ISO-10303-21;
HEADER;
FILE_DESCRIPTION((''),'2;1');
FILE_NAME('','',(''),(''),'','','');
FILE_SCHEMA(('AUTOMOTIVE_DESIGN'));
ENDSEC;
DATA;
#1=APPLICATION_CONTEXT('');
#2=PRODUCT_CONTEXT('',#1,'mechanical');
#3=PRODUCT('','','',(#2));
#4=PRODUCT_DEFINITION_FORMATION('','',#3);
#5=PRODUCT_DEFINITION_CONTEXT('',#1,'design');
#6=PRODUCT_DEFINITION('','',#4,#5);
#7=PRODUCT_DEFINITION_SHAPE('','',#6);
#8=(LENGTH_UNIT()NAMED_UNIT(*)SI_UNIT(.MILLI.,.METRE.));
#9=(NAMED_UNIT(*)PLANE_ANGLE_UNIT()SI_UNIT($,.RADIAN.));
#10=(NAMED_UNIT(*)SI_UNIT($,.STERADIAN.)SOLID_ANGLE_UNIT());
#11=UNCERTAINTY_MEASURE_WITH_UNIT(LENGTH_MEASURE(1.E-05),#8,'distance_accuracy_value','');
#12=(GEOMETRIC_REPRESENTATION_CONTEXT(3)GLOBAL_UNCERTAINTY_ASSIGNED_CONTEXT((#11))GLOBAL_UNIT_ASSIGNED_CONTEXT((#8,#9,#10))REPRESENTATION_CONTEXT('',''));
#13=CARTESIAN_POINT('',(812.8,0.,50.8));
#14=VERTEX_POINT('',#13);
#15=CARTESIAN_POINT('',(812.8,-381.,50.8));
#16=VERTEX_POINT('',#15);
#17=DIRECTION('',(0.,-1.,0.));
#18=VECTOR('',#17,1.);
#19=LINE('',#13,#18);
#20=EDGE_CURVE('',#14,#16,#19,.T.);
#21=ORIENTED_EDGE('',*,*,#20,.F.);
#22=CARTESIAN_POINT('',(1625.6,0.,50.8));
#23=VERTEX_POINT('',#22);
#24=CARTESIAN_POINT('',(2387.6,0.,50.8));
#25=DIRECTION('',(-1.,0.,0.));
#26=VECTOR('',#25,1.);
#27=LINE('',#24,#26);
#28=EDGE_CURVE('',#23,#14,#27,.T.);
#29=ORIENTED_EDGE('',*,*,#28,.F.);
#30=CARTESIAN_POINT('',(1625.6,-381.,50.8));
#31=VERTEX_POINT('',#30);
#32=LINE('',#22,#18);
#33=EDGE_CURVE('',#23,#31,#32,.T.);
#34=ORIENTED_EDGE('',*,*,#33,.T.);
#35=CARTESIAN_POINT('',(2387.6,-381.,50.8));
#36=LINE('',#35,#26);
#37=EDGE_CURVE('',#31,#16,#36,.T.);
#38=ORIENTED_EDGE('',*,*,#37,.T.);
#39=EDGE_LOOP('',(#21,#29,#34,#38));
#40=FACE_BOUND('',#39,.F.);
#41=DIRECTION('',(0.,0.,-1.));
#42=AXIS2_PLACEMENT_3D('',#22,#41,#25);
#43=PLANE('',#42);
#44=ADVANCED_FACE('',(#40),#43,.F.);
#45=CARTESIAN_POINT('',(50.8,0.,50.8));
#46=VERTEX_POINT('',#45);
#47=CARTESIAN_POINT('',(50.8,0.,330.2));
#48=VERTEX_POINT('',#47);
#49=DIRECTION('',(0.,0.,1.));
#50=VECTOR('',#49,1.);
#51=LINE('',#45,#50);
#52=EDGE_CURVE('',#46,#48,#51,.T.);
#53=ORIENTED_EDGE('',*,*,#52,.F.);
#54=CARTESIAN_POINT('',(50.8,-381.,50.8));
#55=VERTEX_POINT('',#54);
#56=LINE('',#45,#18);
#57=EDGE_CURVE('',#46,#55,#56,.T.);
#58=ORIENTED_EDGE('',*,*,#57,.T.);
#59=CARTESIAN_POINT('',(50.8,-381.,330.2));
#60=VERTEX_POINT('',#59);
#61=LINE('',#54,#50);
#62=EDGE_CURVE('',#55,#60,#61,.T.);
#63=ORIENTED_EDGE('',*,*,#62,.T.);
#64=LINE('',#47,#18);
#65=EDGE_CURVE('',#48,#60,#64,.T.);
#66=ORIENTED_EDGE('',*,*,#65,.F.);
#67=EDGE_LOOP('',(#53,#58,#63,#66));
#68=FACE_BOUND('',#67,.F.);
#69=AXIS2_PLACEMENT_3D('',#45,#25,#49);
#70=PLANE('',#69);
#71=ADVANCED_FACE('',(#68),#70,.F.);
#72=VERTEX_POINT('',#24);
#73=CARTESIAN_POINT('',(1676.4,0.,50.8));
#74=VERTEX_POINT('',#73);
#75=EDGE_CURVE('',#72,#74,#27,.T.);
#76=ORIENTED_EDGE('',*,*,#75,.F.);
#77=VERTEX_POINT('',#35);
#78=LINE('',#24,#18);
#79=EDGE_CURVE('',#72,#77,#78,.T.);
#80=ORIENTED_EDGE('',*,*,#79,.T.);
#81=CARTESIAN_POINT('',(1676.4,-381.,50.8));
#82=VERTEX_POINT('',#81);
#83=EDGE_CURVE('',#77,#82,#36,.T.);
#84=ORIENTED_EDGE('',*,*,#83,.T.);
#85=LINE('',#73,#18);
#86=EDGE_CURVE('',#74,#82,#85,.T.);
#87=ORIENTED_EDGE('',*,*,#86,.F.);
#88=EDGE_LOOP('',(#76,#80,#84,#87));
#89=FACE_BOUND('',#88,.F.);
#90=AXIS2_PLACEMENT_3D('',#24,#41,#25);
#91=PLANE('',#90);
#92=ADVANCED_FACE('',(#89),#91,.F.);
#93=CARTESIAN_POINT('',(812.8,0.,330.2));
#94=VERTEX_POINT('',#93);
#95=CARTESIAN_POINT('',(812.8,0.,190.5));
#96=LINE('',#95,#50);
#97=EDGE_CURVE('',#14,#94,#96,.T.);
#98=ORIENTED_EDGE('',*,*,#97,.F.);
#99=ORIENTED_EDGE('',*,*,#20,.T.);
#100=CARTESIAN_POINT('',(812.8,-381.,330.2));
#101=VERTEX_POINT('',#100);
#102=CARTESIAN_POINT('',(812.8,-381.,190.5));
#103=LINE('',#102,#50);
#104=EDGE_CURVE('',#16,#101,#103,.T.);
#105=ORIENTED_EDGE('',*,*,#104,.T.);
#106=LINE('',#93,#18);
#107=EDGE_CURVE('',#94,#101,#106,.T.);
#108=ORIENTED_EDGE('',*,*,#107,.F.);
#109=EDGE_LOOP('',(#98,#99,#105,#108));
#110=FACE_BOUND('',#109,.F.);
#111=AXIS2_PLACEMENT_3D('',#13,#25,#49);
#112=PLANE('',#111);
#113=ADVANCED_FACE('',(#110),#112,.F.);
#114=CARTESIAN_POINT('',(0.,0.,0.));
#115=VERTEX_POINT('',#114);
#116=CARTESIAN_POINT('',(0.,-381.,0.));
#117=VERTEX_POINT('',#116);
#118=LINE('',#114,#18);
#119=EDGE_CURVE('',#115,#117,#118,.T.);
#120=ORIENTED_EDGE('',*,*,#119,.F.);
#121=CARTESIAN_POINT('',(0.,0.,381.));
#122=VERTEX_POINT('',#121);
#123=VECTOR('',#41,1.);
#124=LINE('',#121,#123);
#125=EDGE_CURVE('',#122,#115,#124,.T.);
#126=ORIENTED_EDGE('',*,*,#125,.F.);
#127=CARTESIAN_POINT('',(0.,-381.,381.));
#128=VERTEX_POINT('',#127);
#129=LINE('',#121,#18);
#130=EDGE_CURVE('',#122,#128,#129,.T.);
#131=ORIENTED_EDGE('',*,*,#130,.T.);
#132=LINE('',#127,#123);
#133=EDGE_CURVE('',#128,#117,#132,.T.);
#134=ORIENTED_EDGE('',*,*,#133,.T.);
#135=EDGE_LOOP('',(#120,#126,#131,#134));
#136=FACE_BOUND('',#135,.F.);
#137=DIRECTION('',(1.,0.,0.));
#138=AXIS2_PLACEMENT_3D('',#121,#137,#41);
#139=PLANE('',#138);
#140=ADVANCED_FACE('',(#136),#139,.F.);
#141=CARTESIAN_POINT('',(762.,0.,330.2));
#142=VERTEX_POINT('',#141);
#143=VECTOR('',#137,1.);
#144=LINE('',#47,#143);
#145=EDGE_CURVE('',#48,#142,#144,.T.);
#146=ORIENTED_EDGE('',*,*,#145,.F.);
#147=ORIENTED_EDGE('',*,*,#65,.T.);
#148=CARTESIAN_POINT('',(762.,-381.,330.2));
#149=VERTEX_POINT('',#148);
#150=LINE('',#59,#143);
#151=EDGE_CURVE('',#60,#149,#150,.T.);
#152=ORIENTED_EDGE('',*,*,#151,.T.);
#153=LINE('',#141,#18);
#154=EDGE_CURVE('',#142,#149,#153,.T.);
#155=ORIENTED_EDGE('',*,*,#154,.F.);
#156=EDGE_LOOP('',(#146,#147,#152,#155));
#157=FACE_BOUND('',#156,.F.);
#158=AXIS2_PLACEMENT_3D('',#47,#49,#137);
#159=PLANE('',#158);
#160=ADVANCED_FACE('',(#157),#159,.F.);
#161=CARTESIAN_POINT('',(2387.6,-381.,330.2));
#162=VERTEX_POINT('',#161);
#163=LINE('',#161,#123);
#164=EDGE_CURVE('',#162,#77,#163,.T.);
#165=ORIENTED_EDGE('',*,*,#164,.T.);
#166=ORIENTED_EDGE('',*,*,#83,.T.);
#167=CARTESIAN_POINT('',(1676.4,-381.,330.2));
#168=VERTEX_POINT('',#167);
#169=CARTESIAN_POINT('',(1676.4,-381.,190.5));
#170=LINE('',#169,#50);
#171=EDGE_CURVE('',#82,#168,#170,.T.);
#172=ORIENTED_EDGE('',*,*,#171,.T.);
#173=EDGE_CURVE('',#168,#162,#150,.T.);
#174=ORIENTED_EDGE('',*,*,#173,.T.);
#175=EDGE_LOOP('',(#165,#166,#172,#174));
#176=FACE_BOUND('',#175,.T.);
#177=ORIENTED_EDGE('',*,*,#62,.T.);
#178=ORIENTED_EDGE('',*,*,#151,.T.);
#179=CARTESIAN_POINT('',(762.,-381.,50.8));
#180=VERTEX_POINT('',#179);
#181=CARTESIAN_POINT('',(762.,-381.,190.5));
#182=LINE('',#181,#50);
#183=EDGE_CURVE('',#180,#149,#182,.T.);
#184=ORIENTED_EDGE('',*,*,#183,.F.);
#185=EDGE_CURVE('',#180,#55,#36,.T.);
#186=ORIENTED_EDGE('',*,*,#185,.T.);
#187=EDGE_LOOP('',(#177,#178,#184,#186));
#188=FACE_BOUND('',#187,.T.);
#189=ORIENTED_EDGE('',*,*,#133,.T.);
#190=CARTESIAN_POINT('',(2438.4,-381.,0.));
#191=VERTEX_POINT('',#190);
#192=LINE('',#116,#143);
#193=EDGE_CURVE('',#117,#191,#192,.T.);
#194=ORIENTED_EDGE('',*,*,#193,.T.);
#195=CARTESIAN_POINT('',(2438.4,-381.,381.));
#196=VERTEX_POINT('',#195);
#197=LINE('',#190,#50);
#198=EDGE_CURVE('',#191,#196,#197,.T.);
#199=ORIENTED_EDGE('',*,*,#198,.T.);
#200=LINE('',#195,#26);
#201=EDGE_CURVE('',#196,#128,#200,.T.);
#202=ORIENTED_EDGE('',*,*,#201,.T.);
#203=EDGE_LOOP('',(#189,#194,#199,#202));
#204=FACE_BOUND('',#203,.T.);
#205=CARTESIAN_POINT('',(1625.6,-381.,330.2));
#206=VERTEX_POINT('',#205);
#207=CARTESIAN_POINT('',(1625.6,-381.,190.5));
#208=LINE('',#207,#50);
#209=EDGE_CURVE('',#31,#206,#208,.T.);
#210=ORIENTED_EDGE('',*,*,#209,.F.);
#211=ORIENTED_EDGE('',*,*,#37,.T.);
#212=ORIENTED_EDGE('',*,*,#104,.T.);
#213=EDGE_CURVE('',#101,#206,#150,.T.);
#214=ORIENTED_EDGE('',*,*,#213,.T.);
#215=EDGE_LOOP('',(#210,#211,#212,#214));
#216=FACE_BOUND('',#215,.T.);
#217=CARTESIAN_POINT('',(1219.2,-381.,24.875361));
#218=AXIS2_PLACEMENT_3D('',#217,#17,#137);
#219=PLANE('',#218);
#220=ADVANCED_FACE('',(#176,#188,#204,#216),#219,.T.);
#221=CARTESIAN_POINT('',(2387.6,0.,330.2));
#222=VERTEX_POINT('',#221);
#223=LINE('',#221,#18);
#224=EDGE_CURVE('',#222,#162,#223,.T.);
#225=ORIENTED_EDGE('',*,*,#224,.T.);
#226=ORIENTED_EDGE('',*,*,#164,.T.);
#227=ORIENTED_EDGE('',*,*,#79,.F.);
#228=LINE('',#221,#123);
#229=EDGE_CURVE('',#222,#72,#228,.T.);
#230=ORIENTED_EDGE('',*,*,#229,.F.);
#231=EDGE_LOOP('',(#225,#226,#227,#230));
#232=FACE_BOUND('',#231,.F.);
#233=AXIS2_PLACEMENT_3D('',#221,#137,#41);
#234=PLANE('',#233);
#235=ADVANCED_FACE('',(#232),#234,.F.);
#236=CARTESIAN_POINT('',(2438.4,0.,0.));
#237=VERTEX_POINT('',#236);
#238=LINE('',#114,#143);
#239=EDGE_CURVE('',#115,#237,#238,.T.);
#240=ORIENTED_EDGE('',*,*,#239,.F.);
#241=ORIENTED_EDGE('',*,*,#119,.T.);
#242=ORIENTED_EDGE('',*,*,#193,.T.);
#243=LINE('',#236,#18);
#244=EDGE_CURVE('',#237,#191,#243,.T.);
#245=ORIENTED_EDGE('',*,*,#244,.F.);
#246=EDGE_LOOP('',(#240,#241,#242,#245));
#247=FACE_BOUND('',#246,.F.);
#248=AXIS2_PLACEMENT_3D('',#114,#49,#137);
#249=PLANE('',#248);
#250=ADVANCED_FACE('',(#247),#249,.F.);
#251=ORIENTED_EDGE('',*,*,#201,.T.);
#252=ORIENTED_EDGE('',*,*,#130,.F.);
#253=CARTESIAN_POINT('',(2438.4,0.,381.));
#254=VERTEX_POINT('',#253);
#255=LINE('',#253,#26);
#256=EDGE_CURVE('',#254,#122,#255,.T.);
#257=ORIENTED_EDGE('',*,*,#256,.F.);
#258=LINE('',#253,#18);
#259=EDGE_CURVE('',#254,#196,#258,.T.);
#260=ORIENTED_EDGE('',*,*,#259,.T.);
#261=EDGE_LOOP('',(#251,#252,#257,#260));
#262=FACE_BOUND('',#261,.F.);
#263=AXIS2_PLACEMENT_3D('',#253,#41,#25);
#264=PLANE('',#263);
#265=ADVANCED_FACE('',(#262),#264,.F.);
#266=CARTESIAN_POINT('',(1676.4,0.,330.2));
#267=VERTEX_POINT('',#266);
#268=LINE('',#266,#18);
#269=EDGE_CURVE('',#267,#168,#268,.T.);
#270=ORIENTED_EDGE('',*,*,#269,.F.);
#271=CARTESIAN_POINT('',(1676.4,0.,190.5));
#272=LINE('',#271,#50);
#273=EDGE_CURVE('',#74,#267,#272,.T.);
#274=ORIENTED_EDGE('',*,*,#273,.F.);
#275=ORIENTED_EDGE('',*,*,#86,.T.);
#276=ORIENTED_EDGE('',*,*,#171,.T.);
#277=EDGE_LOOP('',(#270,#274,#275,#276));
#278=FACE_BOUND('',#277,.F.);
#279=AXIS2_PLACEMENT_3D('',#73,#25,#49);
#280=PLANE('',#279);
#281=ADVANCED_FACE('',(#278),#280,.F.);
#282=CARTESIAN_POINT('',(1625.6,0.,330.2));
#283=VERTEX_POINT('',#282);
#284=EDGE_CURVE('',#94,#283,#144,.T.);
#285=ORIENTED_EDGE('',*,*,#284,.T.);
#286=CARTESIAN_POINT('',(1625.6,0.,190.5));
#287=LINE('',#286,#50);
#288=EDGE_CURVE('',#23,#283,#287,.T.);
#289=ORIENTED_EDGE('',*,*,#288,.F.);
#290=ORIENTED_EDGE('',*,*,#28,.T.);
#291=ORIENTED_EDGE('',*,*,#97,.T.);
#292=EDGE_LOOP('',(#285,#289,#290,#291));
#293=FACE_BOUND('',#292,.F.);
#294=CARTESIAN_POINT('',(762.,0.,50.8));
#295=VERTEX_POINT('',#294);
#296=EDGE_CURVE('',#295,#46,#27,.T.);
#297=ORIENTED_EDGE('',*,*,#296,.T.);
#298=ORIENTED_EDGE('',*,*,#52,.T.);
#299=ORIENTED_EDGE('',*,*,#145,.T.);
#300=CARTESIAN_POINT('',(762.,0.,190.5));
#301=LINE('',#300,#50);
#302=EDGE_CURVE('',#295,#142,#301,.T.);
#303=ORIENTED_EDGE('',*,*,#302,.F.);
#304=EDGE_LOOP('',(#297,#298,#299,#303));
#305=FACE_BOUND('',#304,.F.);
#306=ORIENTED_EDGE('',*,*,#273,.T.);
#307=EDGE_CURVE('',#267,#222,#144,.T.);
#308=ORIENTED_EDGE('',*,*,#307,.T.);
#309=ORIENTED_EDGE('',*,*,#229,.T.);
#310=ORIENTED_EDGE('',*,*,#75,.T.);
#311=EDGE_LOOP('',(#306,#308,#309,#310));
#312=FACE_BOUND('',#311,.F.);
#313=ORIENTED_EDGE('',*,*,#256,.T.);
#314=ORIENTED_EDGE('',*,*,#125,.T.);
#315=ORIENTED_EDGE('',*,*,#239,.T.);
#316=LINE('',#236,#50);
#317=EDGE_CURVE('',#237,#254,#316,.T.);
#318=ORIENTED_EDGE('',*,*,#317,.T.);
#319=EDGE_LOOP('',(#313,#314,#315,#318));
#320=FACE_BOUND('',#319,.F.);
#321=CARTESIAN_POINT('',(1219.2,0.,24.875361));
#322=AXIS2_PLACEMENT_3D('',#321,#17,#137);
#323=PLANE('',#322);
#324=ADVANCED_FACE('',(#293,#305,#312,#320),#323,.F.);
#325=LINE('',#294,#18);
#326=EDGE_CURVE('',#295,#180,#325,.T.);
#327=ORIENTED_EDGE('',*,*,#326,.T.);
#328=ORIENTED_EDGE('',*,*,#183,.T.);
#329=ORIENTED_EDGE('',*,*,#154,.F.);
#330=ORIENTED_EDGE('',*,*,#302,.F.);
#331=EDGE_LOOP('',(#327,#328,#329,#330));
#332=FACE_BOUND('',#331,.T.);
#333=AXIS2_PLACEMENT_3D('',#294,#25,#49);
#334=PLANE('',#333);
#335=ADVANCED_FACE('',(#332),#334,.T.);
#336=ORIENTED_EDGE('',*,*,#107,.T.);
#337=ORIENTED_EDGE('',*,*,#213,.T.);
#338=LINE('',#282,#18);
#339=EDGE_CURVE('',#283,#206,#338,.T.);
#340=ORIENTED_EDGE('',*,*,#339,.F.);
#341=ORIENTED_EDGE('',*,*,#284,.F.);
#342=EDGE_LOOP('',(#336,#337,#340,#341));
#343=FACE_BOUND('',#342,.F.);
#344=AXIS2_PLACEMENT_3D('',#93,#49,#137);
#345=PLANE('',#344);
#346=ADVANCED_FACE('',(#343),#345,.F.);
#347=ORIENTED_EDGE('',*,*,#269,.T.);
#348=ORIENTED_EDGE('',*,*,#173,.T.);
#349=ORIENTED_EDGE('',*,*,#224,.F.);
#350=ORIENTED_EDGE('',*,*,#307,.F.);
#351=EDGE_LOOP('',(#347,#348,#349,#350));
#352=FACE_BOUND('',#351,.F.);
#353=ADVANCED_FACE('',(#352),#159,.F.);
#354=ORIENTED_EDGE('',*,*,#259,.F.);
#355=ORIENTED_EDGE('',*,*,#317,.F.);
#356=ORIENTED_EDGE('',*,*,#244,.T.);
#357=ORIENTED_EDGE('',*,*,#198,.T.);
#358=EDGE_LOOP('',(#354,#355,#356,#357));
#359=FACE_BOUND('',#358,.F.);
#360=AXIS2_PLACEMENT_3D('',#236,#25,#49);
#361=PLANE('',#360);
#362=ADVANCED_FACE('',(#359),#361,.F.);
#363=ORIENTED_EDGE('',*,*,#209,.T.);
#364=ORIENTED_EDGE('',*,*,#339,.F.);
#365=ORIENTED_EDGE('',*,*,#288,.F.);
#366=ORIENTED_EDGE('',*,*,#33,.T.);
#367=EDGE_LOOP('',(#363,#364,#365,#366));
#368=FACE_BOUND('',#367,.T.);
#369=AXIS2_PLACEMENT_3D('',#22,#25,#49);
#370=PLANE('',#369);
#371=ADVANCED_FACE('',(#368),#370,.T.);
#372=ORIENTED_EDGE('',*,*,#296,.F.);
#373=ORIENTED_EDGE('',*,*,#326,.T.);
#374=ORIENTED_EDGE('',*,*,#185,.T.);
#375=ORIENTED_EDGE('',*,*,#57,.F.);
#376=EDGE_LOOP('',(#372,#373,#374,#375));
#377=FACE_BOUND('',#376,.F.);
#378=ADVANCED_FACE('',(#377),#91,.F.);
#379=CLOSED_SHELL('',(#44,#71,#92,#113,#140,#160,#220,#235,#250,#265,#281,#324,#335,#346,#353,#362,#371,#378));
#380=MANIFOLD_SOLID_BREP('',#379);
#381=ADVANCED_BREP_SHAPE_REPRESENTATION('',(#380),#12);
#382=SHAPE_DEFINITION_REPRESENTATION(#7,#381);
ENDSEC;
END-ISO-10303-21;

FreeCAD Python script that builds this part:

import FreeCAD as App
import Part
import Sketcher
Q = App.Units.Quantity


def add_polygon(sketch, points):
    """Adds a closed chain of lines whose ends are joined by coincident constraints."""
    first, n = sketch.GeometryCount, len(points)
    for a, b in zip(points, points[1:] + points[:1]):
        sketch.addGeometry(Part.LineSegment(App.Vector(*a, 0), App.Vector(*b, 0)), False)
    for i in range(n):
        sketch.addConstraint(Sketcher.Constraint("Coincident", first + i, 2, first + (i + 1) % n, 1))

doc = App.newDocument("Part")
body = doc.addObject("PartDesign::Body", "Body")

sketch1 = doc.addObject("Sketcher::SketchObject", "Sketch")
body.addObject(sketch1)
sketch1.AttachmentSupport = (doc.XZ_Plane, [""])
sketch1.MapMode = "FlatFace"
add_polygon(sketch1, [(0, 0), (2438.4, 0), (2438.4, 381), (0, 381)])
add_polygon(sketch1, [(2387.6, 330.2), (2387.6, 50.8), (50.8, 50.8), (50.8, 330.2)])
sketch1.addConstraint([
    Sketcher.Constraint("Horizontal", 0),
    Sketcher.Constraint("Vertical", 1),
    Sketcher.Constraint("Horizontal", 2),
    Sketcher.Constraint("Vertical", 3),
    Sketcher.Constraint("Vertical", 4),
    Sketcher.Constraint("Horizontal", 5),
    Sketcher.Constraint("Vertical", 6),
    Sketcher.Constraint("Horizontal", 7),
    Sketcher.Constraint("Coincident", 3, 2, -1, 1),
    Sketcher.Constraint("DistanceX", 0, 1, 0, 2, Q("96 in")),
    Sketcher.Constraint("DistanceX", 5, 2, 5, 1, Q("92 in")),
    Sketcher.Constraint("DistanceY", 1, 1, 1, 2, Q("15 in")),
    Sketcher.Constraint("DistanceY", 4, 2, 4, 1, Q("11 in")),
    Sketcher.Constraint("DistanceX", -1, 1, 4, 2, Q("94 in")),
    Sketcher.Constraint("DistanceY", -1, 1, 4, 2, Q("2 in")),
])
pad1 = doc.addObject("PartDesign::Pad", "Pad")
body.addObject(pad1)
pad1.Profile = sketch1
pad1.Length = Q("15 in")

sketch2 = doc.addObject("Sketcher::SketchObject", "Sketch001")
body.addObject(sketch2)
sketch2.AttachmentSupport = (doc.XZ_Plane, [""])
sketch2.MapMode = "FlatFace"
add_polygon(sketch2, [(0, 0), (2438.4, 0), (2438.4, 381), (0, 381)])
add_polygon(sketch2, [(2387.6, 330.2), (2387.6, 50.8), (1676.4, 50.8), (1676.4, 330.2)])
add_polygon(sketch2, [(1625.6, 50.8), (812.8, 50.8), (812.8, 330.2), (1625.6, 330.2)])
add_polygon(sketch2, [(762, 50.8), (50.8, 50.8), (50.8, 330.2), (762, 330.2)])
sketch2.addConstraint([
    Sketcher.Constraint("Horizontal", 0),
    Sketcher.Constraint("Vertical", 1),
    Sketcher.Constraint("Horizontal", 2),
    Sketcher.Constraint("Vertical", 3),
    Sketcher.Constraint("Vertical", 4),
    Sketcher.Constraint("Horizontal", 5),
    Sketcher.Constraint("Vertical", 6),
    Sketcher.Constraint("Horizontal", 7),
    Sketcher.Constraint("Horizontal", 8),
    Sketcher.Constraint("Vertical", 9),
    Sketcher.Constraint("Horizontal", 10),
    Sketcher.Constraint("Vertical", 11),
    Sketcher.Constraint("Horizontal", 12),
    Sketcher.Constraint("Vertical", 13),
    Sketcher.Constraint("Horizontal", 14),
    Sketcher.Constraint("Vertical", 15),
    Sketcher.Constraint("Coincident", 3, 2, -1, 1),
    Sketcher.Constraint("Horizontal", 5, 2, 8, 2),
    Sketcher.Constraint("Horizontal", 7, 2, 9, 2),
    Sketcher.Constraint("Horizontal", 11, 2, 12, 2),
    Sketcher.Constraint("Horizontal", 10, 2, 13, 2),
    Sketcher.Constraint("Equal", 7, 12),
    Sketcher.Constraint("DistanceX", 0, 1, 0, 2, Q("96 in")),
    Sketcher.Constraint("DistanceX", 5, 2, 5, 1, Q("28 in")),
    Sketcher.Constraint("DistanceX", 8, 2, 8, 1, Q("32 in")),
    Sketcher.Constraint("DistanceY", 1, 1, 1, 2, Q("15 in")),
    Sketcher.Constraint("DistanceY", 4, 2, 4, 1, Q("11 in")),
    Sketcher.Constraint("DistanceX", -1, 1, 4, 2, Q("94 in")),
    Sketcher.Constraint("DistanceY", -1, 1, 4, 2, Q("2 in")),
    Sketcher.Constraint("DistanceX", -1, 1, 8, 2, Q("32 in")),
    Sketcher.Constraint("DistanceX", -1, 1, 12, 2, Q("2 in")),
])
pad2 = doc.addObject("PartDesign::Pad", "Pad001")
body.addObject(pad2)
pad2.Profile = sketch2
pad2.Length = Q("15 in")

doc.recompute()
